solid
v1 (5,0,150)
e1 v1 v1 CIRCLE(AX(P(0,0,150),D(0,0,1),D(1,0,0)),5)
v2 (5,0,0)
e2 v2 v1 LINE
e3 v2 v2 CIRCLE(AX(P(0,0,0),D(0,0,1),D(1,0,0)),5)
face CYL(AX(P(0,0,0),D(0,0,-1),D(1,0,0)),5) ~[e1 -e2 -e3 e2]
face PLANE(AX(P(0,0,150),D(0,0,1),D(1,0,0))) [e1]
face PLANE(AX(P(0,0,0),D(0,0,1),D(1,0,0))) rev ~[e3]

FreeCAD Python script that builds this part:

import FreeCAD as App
import Part
import Sketcher

V = App.Vector
Q = App.Units.Quantity

doc = App.newDocument("Part")
params = doc.addObject("Spreadsheet::Sheet", "Params")
for row, (alias, value) in enumerate([
    ("sketch1_diameter", "10 mm"),
    ("pad1_length", "150 mm"),
], start=1):
    params.set(f"A{row}", alias)
    params.set(f"B{row}", "=" + value)
    params.setAlias(f"B{row}", alias)

body = doc.addObject("PartDesign::Body", "Body")

# Sketch on XY plane
sketch1 = body.newObject("Sketcher::SketchObject", "Sketch")
sketch1.AttachmentSupport = (doc.getObject("XY_Plane"), [""])
sketch1.MapMode = "FlatFace"
sketch1.addGeometry(Part.Circle(V(0, 0, 0), V(0, 0, 1), 5), False)
sketch1.addConstraint(Sketcher.Constraint("Coincident", 0, 3, -1, 1))
sketch1.addConstraint(Sketcher.Constraint("Diameter", 0, Q("10 mm")))
sketch1.setExpression("Constraints[1]", "Params.sketch1_diameter")
pad1 = body.newObject("PartDesign::Pad", "Pad")
pad1.Profile = sketch1
pad1.setExpression("Length", "Params.pad1_length")

doc.recompute()
